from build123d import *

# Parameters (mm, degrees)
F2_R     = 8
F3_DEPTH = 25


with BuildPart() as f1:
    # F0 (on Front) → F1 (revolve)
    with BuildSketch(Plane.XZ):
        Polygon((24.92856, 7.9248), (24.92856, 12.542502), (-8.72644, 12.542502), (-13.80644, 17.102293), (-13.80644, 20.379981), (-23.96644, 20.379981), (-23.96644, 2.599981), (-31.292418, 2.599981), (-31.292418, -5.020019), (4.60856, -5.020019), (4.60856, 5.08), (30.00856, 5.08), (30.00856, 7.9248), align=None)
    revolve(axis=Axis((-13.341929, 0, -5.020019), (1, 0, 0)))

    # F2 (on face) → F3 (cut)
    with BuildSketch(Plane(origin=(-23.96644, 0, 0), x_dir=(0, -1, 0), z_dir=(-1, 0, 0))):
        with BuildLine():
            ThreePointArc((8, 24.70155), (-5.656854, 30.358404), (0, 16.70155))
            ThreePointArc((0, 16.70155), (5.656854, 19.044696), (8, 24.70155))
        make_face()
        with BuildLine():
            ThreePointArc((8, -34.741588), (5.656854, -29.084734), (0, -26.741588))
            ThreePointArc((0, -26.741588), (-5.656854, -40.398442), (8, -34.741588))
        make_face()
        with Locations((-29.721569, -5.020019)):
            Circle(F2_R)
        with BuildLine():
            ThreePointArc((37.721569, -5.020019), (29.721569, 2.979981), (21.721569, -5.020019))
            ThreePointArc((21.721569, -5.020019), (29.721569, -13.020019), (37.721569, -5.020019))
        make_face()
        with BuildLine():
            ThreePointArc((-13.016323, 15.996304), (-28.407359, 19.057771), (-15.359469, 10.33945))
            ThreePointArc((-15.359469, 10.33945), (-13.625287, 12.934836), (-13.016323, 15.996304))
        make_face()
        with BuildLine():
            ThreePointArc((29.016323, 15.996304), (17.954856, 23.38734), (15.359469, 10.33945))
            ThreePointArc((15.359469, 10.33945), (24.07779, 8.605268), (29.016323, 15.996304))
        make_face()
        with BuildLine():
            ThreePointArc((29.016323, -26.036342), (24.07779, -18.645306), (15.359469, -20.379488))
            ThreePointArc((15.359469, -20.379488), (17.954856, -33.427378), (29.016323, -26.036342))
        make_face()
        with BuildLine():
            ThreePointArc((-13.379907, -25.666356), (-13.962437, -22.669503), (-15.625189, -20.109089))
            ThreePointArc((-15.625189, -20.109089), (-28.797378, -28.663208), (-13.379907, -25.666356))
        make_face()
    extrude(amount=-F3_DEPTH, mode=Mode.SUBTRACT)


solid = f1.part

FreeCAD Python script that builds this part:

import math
import FreeCAD as App
import Part
import Sketcher
from FreeCAD import Vector
Q = App.Units.Quantity

doc = App.newDocument("Part")
body = doc.addObject("PartDesign::Body", "Body")

# Sketch on XZ plane
sketch1 = body.newObject("Sketcher::SketchObject", "Sketch")
sketch1.AttachmentSupport = (doc.getObject("XZ_Plane"), [""])
sketch1.MapMode = "FlatFace"
sketch1.addGeometry(Part.LineSegment(Vector(24.9, 7.9, 0), Vector(24.9, 12.5, 0)), False)
sketch1.addGeometry(Part.LineSegment(Vector(24.9, 12.5, 0), Vector(-8.7, 12.5, 0)), False)
sketch1.addGeometry(Part.LineSegment(Vector(-8.7, 12.5, 0), Vector(-13.8, 17.1, 0)), False)
sketch1.addGeometry(Part.LineSegment(Vector(-13.8, 17.1, 0), Vector(-13.8, 20.4, 0)), False)
sketch1.addGeometry(Part.LineSegment(Vector(-13.8, 20.4, 0), Vector(-24, 20.4, 0)), False)
sketch1.addGeometry(Part.LineSegment(Vector(-24, 20.4, 0), Vector(-24, 2.6, 0)), False)
sketch1.addGeometry(Part.LineSegment(Vector(-24, 2.6, 0), Vector(-31.3, 2.6, 0)), False)
sketch1.addGeometry(Part.LineSegment(Vector(-31.3, 2.6, 0), Vector(-31.3, -5, 0)), False)
sketch1.addGeometry(Part.LineSegment(Vector(-31.3, -5, 0), Vector(4.6, -5, 0)), False)
sketch1.addGeometry(Part.LineSegment(Vector(4.6, -5, 0), Vector(4.6, 5.1, 0)), False)
sketch1.addGeometry(Part.LineSegment(Vector(4.6, 5.1, 0), Vector(30, 5.1, 0)), False)
sketch1.addGeometry(Part.LineSegment(Vector(30, 5.1, 0), Vector(30, 7.9, 0)), False)
sketch1.addGeometry(Part.LineSegment(Vector(30, 7.9, 0), Vector(24.9, 7.9, 0)), False)
sketch1.addGeometry(Part.LineSegment(Vector(-31.3, -5, 0), Vector(30, -5, 0)), True)  # axis
sketch1.addConstraint(Sketcher.Constraint("Coincident", 0, 2, 1, 1))
sketch1.addConstraint(Sketcher.Constraint("Coincident", 1, 2, 2, 1))
sketch1.addConstraint(Sketcher.Constraint("Coincident", 2, 2, 3, 1))
sketch1.addConstraint(Sketcher.Constraint("Coincident", 3, 2, 4, 1))
sketch1.addConstraint(Sketcher.Constraint("Coincident", 4, 2, 5, 1))
sketch1.addConstraint(Sketcher.Constraint("Coincident", 5, 2, 6, 1))
sketch1.addConstraint(Sketcher.Constraint("Coincident", 6, 2, 7, 1))
sketch1.addConstraint(Sketcher.Constraint("Coincident", 7, 2, 8, 1))
sketch1.addConstraint(Sketcher.Constraint("Coincident", 8, 2, 9, 1))
sketch1.addConstraint(Sketcher.Constraint("Coincident", 9, 2, 10, 1))
sketch1.addConstraint(Sketcher.Constraint("Coincident", 10, 2, 11, 1))
sketch1.addConstraint(Sketcher.Constraint("Coincident", 11, 2, 12, 1))
sketch1.addConstraint(Sketcher.Constraint("Coincident", 12, 2, 0, 1))
sketch1.addConstraint(Sketcher.Constraint("Vertical", 0))
sketch1.addConstraint(Sketcher.Constraint("Horizontal", 1))
sketch1.addConstraint(Sketcher.Constraint("Vertical", 3))
sketch1.addConstraint(Sketcher.Constraint("Horizontal", 4))
sketch1.addConstraint(Sketcher.Constraint("Vertical", 5))
sketch1.addConstraint(Sketcher.Constraint("Horizontal", 6))
sketch1.addConstraint(Sketcher.Constraint("Vertical", 7))
sketch1.addConstraint(Sketcher.Constraint("Horizontal", 8))
sketch1.addConstraint(Sketcher.Constraint("Vertical", 9))
sketch1.addConstraint(Sketcher.Constraint("Horizontal", 10))
sketch1.addConstraint(Sketcher.Constraint("Vertical", 11))
sketch1.addConstraint(Sketcher.Constraint("Horizontal", 12))
sketch1.addConstraint(Sketcher.Constraint("Horizontal", 13))
sketch1.addConstraint(Sketcher.Constraint("Coincident", 13, 1, 7, 2))
sketch1.addConstraint(Sketcher.Constraint("Vertical", 11, 2, 13, 2))
sketch1.addConstraint(Sketcher.Constraint("DistanceX", 10, 1, 10, 2, Q("1 in")))
sketch1.addConstraint(Sketcher.Constraint("DistanceX", 4, 2, 4, 1, Q("0.4 in")))
sketch1.addConstraint(Sketcher.Constraint("DistanceX", 12, 2, 12, 1, Q("0.2 in")))
sketch1.addConstraint(Sketcher.Constraint("DistanceY", 5, 2, 5, 1, Q("0.7 in")))
sketch1.addConstraint(Sketcher.Constraint("DistanceY", 7, 2, 7, 1, Q("0.3 in")))
sketch1.addConstraint(Sketcher.Constraint("DistanceY", -1, 1, 9, 2, Q("0.2 in")))
sketch1.addConstraint(Sketcher.Constraint("DistanceX", 2, 2, 1, 2, Q("0.2 in")))
sketch1.addConstraint(Sketcher.Constraint("DistanceX", 1, 2, 1, 1, Q("1.325 in")))
sketch1.addConstraint(Sketcher.Constraint("DistanceY", 11, 1, 11, 2, Q("0.112 in")))
sketch1.addConstraint(Sketcher.Constraint("DistanceX", 6, 2, 6, 1, Q("7.325978 mm")))
sketch1.addConstraint(Sketcher.Constraint("DistanceY", 3, 1, 3, 2, Q("3.277688 mm")))
sketch1.addConstraint(Sketcher.Constraint("DistanceY", 9, 1, 9, 2, Q("10.100019 mm")))
sketch1.addConstraint(Sketcher.Constraint("Distance", 2, Q("6.82628 mm")))
sketch1.addConstraint(Sketcher.Constraint("DistanceX", -1, 1, 0, 2, Q("24.92856 mm")))
revolution = body.newObject("PartDesign::Revolution", "Revolution")
revolution.Profile = sketch1
revolution.ReferenceAxis = (sketch1, ["Axis0"])
revolution.Angle = 360

# Sketch on YZ plane
sketch2 = body.newObject("Sketcher::SketchObject", "Sketch001")
sketch2.AttachmentSupport = (doc.getObject("YZ_Plane"), [""])
sketch2.MapMode = "FlatFace"
sketch2.AttachmentOffset = App.Placement(Vector(0, 0, -23.96644), App.Rotation())
sketch2.addGeometry(Part.ArcOfCircle(Part.Circle(Vector(0, 25, 0), Vector(0, 0, 1), 8), math.radians(-90), math.radians(180)), False)
sketch2.addGeometry(Part.ArcOfCircle(Part.Circle(Vector(0, 25, 0), Vector(0, 0, 1), 8), math.radians(-180), math.radians(-90)), False)
sketch2.addGeometry(Part.ArcOfCircle(Part.Circle(Vector(0, -35, 0), Vector(0, 0, 1), 8), math.radians(90), math.radians(180)), False)
sketch2.addGeometry(Part.ArcOfCircle(Part.Circle(Vector(0, -35, 0), Vector(0, 0, 1), 8), math.radians(-180), math.radians(90)), False)
sketch2.addGeometry(Part.Circle(Vector(30, -5, 0), Vector(0, 0, 1), 8), False)
sketch2.addGeometry(Part.Circle(Vector(-30, -5, 0), Vector(0, 0, 1), 8), False)
sketch2.addGeometry(Part.ArcOfCircle(Part.Circle(Vector(21, 16, 0), Vector(0, 0, 1), 8), math.radians(-135), math.radians(180)), False)
sketch2.addGeometry(Part.ArcOfCircle(Part.Circle(Vector(21, 16, 0), Vector(0, 0, 1), 8), math.radians(180), math.radians(225)), False)
sketch2.addGeometry(Part.ArcOfCircle(Part.Circle(Vector(-21, 16, 0), Vector(0, 0, 1), 8), math.radians(-45), math.radians(180)), False)
sketch2.addGeometry(Part.ArcOfCircle(Part.Circle(Vector(-21, 16, 0), Vector(0, 0, 1), 8), math.radians(-180), math.radians(-45)), False)
sketch2.addGeometry(Part.ArcOfCircle(Part.Circle(Vector(-21, -26, 0), Vector(0, 0, 1), 8), math.radians(45), math.radians(180)), False)
sketch2.addGeometry(Part.ArcOfCircle(Part.Circle(Vector(-21, -26, 0), Vector(0, 0, 1), 8), math.radians(-180), math.radians(45)), False)
sketch2.addGeometry(Part.ArcOfCircle(Part.Circle(Vector(21, -26, 0), Vector(0, 0, 1), 8), math.radians(136), math.radians(180)), False)
sketch2.addGeometry(Part.ArcOfCircle(Part.Circle(Vector(21, -26, 0), Vector(0, 0, 1), 8), math.radians(180), math.radians(496)), False)
sketch2.addConstraint(Sketcher.Constraint("Tangent", 0, 1, 1, 2))
sketch2.addConstraint(Sketcher.Constraint("Coincident", 1, 1, 0, 2))
sketch2.addConstraint(Sketcher.Constraint("Tangent", 2, 1, 3, 2))
sketch2.addConstraint(Sketcher.Constraint("Coincident", 3, 1, 2, 2))
sketch2.addConstraint(Sketcher.Constraint("Tangent", 6, 1, 7, 2))
sketch2.addConstraint(Sketcher.Constraint("Coincident", 7, 1, 6, 2))
sketch2.addConstraint(Sketcher.Constraint("Tangent", 8, 1, 9, 2))
sketch2.addConstraint(Sketcher.Constraint("Coincident", 9, 1, 8, 2))
sketch2.addConstraint(Sketcher.Constraint("Tangent", 10, 1, 11, 2))
sketch2.addConstraint(Sketcher.Constraint("Coincident", 11, 1, 10, 2))
sketch2.addConstraint(Sketcher.Constraint("Tangent", 12, 1, 13, 2))
sketch2.addConstraint(Sketcher.Constraint("Coincident", 13, 1, 12, 2))
sketch2.addConstraint(Sketcher.Constraint("Equal", 1, 2))
sketch2.addConstraint(Sketcher.Constraint("Equal", 3, 4))
sketch2.addConstraint(Sketcher.Constraint("Equal", 4, 5))
sketch2.addConstraint(Sketcher.Constraint("Equal", 5, 6))
sketch2.addConstraint(Sketcher.Constraint("Equal", 7, 8))
sketch2.addConstraint(Sketcher.Constraint("Equal", 9, 10))
sketch2.addConstraint(Sketcher.Constraint("Equal", 11, 13))
sketch2.addConstraint(Sketcher.Constraint("Symmetric", 4, 3, 5, 3, -2))
sketch2.addConstraint(Sketcher.Constraint("Symmetric", 6, 3, 8, 3, -2))
sketch2.addConstraint(Sketcher.Constraint("PointOnObject", 0, 3, -2))
sketch2.addConstraint(Sketcher.Constraint("PointOnObject", 2, 3, -2))
sketch2.addConstraint(Sketcher.Constraint("PointOnObject", 0, 1, -2))
sketch2.addConstraint(Sketcher.Constraint("PointOnObject", 2, 1, -2))
sketch2.addConstraint(Sketcher.Constraint("Horizontal", 0, 3, 1, 1))
sketch2.addConstraint(Sketcher.Constraint("Horizontal", 2, 3, 3, 1))
sketch2.addConstraint(Sketcher.Constraint("Horizontal", 9, 3, 7, 1))
sketch2.addConstraint(Sketcher.Constraint("Horizontal", 6, 1, 8, 1))
sketch2.addConstraint(Sketcher.Constraint("Horizontal", 7, 1, 9, 1))
sketch2.addConstraint(Sketcher.Constraint("Horizontal", 10, 3, 11, 1))
sketch2.addConstraint(Sketcher.Constraint("Vertical", 9, 3, 10, 3))
sketch2.addConstraint(Sketcher.Constraint("Vertical", 8, 1, 10, 1))
sketch2.addConstraint(Sketcher.Constraint("Diameter", 4, Q("16 mm")))
sketch2.addConstraint(Sketcher.Constraint("DistanceY", 6, 1, 0, 1, Q("6.3621 mm")))
sketch2.addConstraint(Sketcher.Constraint("DistanceX", 6, 1, 4, 3, Q("14.3621 mm")))
sketch2.addConstraint(Sketcher.Constraint("DistanceY", 3, 1, 10, 1, Q("14.3621 mm")))
sketch2.addConstraint(Sketcher.Constraint("DistanceY", 2, 1, 12, 1, Q("6.632499 mm")))
sketch2.addConstraint(Sketcher.Constraint("DistanceY", -1, 1, 0, 3, Q("24.70155 mm")))
sketch2.addConstraint(Sketcher.Constraint("DistanceY", 2, 3, -1, 1, Q("34.741589 mm")))
sketch2.addConstraint(Sketcher.Constraint("DistanceX", -1, 1, 4, 3, Q("29.721569 mm")))
sketch2.addConstraint(Sketcher.Constraint("DistanceY", 4, 3, -1, 1, Q("5.020019 mm")))
sketch2.addConstraint(Sketcher.Constraint("DistanceX", -1, 1, 7, 3, Q("21.016321 mm")))
sketch2.addConstraint(Sketcher.Constraint("DistanceY", 12, 3, -1, 1, Q("25.666359 mm")))
sketch2.addConstraint(Sketcher.Constraint("DistanceX", -1, 1, 12, 1, Q("15.625189 mm")))
sketch2.addConstraint(Sketcher.Constraint("DistanceY", 13, 1, -1, 1, Q("25.666356 mm")))
pocket1 = body.newObject("PartDesign::Pocket", "Pocket")
pocket1.Profile = sketch2
pocket1.Length = 25
pocket1.Reversed = True

doc.recompute()
